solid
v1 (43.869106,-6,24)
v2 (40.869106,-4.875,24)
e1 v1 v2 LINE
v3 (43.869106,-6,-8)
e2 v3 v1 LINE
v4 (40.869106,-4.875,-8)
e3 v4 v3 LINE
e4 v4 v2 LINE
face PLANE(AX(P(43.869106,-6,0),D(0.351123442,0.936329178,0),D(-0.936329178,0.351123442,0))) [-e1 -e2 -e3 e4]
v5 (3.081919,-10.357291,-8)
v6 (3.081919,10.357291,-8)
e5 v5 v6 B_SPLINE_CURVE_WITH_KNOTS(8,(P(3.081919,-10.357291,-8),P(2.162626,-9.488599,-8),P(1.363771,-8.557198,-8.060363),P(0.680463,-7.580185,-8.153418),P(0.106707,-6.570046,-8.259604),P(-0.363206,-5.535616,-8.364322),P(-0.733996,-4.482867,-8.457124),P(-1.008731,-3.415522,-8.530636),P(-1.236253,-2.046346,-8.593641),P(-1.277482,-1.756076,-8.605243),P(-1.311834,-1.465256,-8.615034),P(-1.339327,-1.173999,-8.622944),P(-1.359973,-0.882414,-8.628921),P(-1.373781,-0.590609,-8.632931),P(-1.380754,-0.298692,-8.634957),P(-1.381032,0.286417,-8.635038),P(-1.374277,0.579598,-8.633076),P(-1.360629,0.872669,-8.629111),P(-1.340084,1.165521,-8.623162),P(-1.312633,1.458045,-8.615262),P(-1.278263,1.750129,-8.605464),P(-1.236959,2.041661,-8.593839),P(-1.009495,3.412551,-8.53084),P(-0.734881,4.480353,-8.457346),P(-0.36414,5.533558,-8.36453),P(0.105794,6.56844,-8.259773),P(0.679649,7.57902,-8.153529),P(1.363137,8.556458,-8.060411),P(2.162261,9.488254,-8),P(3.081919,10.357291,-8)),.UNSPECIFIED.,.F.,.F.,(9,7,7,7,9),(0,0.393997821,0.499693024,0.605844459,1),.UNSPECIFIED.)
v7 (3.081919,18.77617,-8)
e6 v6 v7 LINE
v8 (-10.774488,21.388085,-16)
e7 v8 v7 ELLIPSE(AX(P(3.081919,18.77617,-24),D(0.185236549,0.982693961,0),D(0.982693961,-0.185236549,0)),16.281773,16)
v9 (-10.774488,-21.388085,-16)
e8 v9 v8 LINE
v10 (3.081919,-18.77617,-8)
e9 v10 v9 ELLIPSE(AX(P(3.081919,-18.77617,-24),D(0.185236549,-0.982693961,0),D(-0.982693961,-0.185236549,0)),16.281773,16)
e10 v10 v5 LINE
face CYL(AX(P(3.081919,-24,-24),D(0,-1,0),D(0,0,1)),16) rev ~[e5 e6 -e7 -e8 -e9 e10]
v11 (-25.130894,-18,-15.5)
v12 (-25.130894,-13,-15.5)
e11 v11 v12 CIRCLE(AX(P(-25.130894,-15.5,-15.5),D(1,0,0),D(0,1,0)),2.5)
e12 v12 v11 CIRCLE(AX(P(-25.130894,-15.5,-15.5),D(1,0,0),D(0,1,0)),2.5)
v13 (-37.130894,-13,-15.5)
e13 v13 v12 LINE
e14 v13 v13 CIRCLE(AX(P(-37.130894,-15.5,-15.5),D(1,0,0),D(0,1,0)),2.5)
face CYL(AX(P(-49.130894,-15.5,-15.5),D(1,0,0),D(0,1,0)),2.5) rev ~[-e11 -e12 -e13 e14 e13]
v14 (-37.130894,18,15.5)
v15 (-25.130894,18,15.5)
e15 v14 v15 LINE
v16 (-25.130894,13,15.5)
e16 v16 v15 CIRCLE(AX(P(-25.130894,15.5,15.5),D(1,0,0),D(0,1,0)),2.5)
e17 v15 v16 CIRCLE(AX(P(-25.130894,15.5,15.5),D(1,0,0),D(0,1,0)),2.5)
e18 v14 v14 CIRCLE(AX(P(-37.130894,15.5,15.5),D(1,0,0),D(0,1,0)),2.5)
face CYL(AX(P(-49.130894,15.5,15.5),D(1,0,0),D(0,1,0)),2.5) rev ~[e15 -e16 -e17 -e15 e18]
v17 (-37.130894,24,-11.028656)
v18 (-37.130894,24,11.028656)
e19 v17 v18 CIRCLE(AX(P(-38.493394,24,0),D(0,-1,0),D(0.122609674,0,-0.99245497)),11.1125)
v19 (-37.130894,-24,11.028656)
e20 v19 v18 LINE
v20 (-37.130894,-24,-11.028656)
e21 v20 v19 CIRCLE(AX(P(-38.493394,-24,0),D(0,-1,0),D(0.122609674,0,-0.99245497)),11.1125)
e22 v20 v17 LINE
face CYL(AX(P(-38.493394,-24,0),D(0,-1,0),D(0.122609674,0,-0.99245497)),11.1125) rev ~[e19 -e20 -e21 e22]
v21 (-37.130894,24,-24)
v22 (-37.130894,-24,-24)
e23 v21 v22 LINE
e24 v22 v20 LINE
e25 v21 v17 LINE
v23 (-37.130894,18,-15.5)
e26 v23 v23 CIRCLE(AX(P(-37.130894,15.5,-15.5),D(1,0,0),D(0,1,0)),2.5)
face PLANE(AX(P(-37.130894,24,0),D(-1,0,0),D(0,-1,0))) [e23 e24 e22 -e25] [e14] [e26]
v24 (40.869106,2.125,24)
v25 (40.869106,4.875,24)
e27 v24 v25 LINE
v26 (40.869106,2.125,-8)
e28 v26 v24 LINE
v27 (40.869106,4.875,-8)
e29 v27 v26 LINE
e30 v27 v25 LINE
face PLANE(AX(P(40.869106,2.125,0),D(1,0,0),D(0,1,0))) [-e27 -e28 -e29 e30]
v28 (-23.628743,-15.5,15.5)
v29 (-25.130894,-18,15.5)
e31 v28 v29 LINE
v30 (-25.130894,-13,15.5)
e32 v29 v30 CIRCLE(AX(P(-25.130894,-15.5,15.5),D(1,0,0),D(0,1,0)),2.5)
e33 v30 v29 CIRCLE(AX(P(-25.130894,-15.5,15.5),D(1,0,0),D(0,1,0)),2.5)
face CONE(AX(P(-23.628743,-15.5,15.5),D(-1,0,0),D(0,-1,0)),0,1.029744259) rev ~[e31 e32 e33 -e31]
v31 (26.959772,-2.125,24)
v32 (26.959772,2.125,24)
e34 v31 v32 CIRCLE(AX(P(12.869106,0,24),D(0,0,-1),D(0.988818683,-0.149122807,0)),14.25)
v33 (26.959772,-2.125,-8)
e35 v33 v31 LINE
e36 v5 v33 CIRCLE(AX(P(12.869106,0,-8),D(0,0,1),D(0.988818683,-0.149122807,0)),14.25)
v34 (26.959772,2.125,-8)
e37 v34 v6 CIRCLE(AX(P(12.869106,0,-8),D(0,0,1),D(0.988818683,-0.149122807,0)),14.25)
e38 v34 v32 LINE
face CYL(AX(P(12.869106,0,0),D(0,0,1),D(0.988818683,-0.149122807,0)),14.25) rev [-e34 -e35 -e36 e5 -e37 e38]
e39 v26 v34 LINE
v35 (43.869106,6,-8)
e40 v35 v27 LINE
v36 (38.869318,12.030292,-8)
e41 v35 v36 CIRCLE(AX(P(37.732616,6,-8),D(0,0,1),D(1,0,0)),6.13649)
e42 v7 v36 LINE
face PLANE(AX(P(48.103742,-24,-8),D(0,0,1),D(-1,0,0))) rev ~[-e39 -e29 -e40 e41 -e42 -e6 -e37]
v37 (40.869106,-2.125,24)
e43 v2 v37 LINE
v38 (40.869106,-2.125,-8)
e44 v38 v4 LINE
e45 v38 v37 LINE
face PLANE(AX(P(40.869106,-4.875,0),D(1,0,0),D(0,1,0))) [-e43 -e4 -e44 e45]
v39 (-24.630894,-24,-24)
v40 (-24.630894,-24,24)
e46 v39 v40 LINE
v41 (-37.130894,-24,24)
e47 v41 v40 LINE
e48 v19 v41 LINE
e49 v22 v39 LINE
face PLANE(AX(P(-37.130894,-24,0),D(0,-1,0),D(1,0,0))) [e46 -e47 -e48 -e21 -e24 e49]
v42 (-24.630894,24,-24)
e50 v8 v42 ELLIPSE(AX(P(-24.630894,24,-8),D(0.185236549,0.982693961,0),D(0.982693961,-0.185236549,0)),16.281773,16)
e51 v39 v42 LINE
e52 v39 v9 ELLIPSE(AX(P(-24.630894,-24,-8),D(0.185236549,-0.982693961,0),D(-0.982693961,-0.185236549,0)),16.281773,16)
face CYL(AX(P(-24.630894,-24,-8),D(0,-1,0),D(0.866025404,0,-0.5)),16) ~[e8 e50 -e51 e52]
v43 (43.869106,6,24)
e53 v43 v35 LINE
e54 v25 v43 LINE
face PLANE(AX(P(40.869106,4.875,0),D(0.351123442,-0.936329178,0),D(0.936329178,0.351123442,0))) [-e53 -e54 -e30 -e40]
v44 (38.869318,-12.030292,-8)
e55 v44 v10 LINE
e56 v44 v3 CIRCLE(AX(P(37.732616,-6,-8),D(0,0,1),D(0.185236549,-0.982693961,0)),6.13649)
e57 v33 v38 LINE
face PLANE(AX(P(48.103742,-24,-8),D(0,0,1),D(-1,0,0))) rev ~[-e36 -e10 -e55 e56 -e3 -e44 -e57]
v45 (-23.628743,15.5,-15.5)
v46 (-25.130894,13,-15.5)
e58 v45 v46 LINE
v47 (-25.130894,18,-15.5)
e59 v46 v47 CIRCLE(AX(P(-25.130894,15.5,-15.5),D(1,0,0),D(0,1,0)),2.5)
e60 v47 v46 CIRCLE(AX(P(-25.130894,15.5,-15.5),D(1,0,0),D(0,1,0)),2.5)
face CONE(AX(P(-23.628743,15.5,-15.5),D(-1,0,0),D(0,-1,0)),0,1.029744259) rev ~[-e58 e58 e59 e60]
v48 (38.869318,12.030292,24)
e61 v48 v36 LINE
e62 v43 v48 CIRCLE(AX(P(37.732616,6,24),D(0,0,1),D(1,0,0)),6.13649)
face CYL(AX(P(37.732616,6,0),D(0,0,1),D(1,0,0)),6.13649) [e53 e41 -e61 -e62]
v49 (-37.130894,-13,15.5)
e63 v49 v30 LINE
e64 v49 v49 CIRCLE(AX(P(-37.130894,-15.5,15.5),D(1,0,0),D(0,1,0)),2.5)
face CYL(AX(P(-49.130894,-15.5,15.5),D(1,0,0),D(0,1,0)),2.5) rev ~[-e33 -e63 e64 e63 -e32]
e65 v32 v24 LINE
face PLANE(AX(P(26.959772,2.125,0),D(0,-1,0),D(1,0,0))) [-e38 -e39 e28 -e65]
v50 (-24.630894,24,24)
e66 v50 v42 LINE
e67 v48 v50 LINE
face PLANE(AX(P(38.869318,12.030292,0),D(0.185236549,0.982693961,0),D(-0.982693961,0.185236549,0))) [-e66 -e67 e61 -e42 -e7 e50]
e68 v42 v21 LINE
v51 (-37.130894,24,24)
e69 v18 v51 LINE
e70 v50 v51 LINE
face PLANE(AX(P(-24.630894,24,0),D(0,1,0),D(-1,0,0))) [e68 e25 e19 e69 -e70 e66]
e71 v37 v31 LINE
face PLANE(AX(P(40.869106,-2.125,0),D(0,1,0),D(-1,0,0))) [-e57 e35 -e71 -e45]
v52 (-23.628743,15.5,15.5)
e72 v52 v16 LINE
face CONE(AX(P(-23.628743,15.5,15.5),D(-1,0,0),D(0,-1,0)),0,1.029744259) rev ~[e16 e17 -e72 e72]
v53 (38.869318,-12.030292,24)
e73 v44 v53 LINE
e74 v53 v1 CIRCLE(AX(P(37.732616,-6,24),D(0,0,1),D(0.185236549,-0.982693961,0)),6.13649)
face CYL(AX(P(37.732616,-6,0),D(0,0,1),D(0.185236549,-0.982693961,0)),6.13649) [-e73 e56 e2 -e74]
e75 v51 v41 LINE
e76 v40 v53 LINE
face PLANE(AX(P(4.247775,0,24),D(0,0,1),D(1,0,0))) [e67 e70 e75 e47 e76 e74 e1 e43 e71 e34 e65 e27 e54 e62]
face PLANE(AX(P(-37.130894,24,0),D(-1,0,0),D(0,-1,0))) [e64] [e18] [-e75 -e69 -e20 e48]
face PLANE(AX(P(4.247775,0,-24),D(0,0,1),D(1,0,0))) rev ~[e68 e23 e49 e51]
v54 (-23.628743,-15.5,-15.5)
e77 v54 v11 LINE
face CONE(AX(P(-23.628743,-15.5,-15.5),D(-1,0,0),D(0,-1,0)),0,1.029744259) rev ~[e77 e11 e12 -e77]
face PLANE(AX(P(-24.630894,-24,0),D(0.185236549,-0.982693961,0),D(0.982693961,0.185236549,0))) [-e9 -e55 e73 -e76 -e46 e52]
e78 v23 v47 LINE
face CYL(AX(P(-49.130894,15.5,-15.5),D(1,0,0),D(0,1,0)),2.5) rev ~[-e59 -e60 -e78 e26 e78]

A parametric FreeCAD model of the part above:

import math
import FreeCAD as App
import Part
import Sketcher
from FreeCAD import Vector

doc = App.newDocument("Part")
params = doc.addObject("Spreadsheet::Sheet", "Params")
for row, (alias, value) in enumerate([
    ("sketch1_height", "48 mm"),
    ("sketch1_radius", "14.25 mm"),
    ("sketch1_width", "12.5 mm"),
    ("sketch1_height2", "2.75 mm"),
    ("pad1_length", "48 mm"),
    ("sketch2_radius", "16 mm"),
    ("sketch4_diameter", "5 mm"),
    ("hole_diameter", "5 mm"),
    ("hole_depth", "12 mm"),
], start=1):
    params.set(f"A{row}", alias)
    params.set(f"B{row}", "=" + value)
    params.setAlias(f"B{row}", alias)

body = doc.addObject("PartDesign::Body", "Body")

# Sketch on XY plane
sketch1 = body.newObject("Sketcher::SketchObject", "Sketch")
sketch1.AttachmentSupport = (doc.getObject("XY_Plane"), [""])
sketch1.MapMode = "FlatFace"
sketch1.addGeometry([
    Part.LineSegment(Vector(-24.630894, 24, 0), Vector(-37.130894, 24, 0)),  # 0
    Part.LineSegment(Vector(-37.130894, 24, 0), Vector(-37.130894, -24, 0)),  # 1
    Part.LineSegment(Vector(-37.130894, -24, 0), Vector(-24.630894, -24, 0)),  # 2
    Part.LineSegment(Vector(-24.630894, -24, 0), Vector(38.869318, -12.030292, 0)),  # 3
    Part.ArcOfCircle(Part.Circle(Vector(37.732616, -6, 0), Vector(0, 0, 1), 6.13649), math.radians(-79.325076), math.radians(0)),  # 4
    Part.LineSegment(Vector(43.869106, -6, 0), Vector(40.869106, -4.875, 0)),  # 5
    Part.LineSegment(Vector(40.869106, -4.875, 0), Vector(40.869106, -2.125, 0)),  # 6
    Part.LineSegment(Vector(40.869106, -2.125, 0), Vector(26.959772, -2.125, 0)),  # 7
    Part.ArcOfCircle(Part.Circle(Vector(12.869106, 0, 0), Vector(0, 0, 1), 14.25), math.radians(8.576095), math.radians(351.423905)),  # 8
    Part.LineSegment(Vector(26.959772, 2.125, 0), Vector(40.869106, 2.125, 0)),  # 9
    Part.LineSegment(Vector(40.869106, 2.125, 0), Vector(40.869106, 4.875, 0)),  # 10
    Part.LineSegment(Vector(40.869106, 4.875, 0), Vector(43.869106, 6, 0)),  # 11
    Part.ArcOfCircle(Part.Circle(Vector(37.732616, 6, 0), Vector(0, 0, 1), 6.13649), math.radians(0), math.radians(79.325076)),  # 12
    Part.LineSegment(Vector(38.869318, 12.030292, 0), Vector(-24.630894, 24, 0)),  # 13
], False)
sketch1.addConstraint([
    Sketcher.Constraint("Coincident", 0, 2, 1, 1),
    Sketcher.Constraint("Coincident", 1, 2, 2, 1),
    Sketcher.Constraint("Coincident", 2, 2, 3, 1),
    Sketcher.Constraint("Tangent", 3, 2, 4, 1),
    Sketcher.Constraint("Coincident", 4, 2, 5, 1),
    Sketcher.Constraint("Coincident", 5, 2, 6, 1),
    Sketcher.Constraint("Coincident", 6, 2, 7, 1),
    Sketcher.Constraint("Coincident", 7, 2, 8, 2),
    Sketcher.Constraint("Coincident", 8, 1, 9, 1),
    Sketcher.Constraint("Coincident", 9, 2, 10, 1),
    Sketcher.Constraint("Coincident", 10, 2, 11, 1),
    Sketcher.Constraint("Coincident", 11, 2, 12, 1),
    Sketcher.Constraint("Tangent", 12, 2, 13, 1),
    Sketcher.Constraint("Coincident", 13, 2, 0, 1),
    Sketcher.Constraint("Horizontal", 0),
    Sketcher.Constraint("Vertical", 1),
    Sketcher.Constraint("Horizontal", 2),
    Sketcher.Constraint("Vertical", 6),
    Sketcher.Constraint("Horizontal", 7),
    Sketcher.Constraint("Horizontal", 9),
    Sketcher.Constraint("Vertical", 10),
    Sketcher.Constraint("Equal", 4, 12),
    Sketcher.Constraint("Symmetric", 4, 3, 12, 3, -1),
    Sketcher.Constraint("Symmetric", 7, 2, 8, 1, -1),
    Sketcher.Constraint("Symmetric", 5, 2, 10, 2, -1),
    Sketcher.Constraint("Symmetric", 2, 2, 13, 2, -1),
    Sketcher.Constraint("Horizontal", 12, 3, 11, 2),
    Sketcher.Constraint("Equal", 5, 11),
    Sketcher.Constraint("DistanceY", 1, 2, 1, 1, 48.0),
    Sketcher.Constraint("Radius", 8, 14.25),
    Sketcher.Constraint("DistanceX", 0, 2, 0, 1, 12.5),
    Sketcher.Constraint("DistanceY", 4, 3, -1, 1, 6.0),
    Sketcher.Constraint("DistanceX", 0, 2, 8, 3, 50.0),
    Sketcher.Constraint("DistanceX", 8, 3, 4, 2, 31.0),
    Sketcher.Constraint("DistanceX", 5, 2, 4, 2, 3.0),
    Sketcher.Constraint("DistanceY", 5, 2, 9, 2, 7.0),
    Sketcher.Constraint("DistanceY", 6, 1, 6, 2, 2.75),
    Sketcher.Constraint("Radius", 4, 6.13649),
    Sketcher.Constraint("DistanceX", -1, 1, 3, 2, 38.869318),
])
sketch1.setExpression("Constraints[28]", "Params.sketch1_height")
sketch1.setExpression("Constraints[29]", "Params.sketch1_radius")
sketch1.setExpression("Constraints[30]", "Params.sketch1_width")
sketch1.setExpression("Constraints[36]", "Params.sketch1_height2")
pad1 = body.newObject("PartDesign::Pad", "Pad")
pad1.Profile = sketch1
pad1.setExpression("Length", "Params.pad1_length")
pad1.Midplane = True

# Sketch on XZ plane
sketch2 = body.newObject("Sketcher::SketchObject", "Sketch001")
sketch2.AttachmentSupport = (doc.getObject("XZ_Plane"), [""])
sketch2.MapMode = "FlatFace"
sketch2.AttachmentOffset = App.Placement(Vector(0, 0, 24), App.Rotation())
sketch2.addGeometry([
    Part.ArcOfCircle(Part.Circle(Vector(-24.630894, -8, 0), Vector(0, 0, 1), 16), math.radians(-90), math.radians(-30)),  # 0
    Part.LineSegment(Vector(-24.630894, -24, 0), Vector(48.103742, -24, 0)),  # 1
    Part.LineSegment(Vector(48.103742, -24, 0), Vector(48.103742, -8, 0)),  # 2
    Part.LineSegment(Vector(48.103742, -8, 0), Vector(3.081919, -8, 0)),  # 3
    Part.ArcOfCircle(Part.Circle(Vector(3.081919, -24, 0), Vector(0, 0, 1), 16), math.radians(90), math.radians(150)),  # 4
], False)
sketch2.addConstraint([
    Sketcher.Constraint("Tangent", 0, 1, 1, 1),
    Sketcher.Constraint("Coincident", 1, 2, 2, 1),
    Sketcher.Constraint("Coincident", 2, 2, 3, 1),
    Sketcher.Constraint("Tangent", 3, 2, 4, 1),
    Sketcher.Constraint("Tangent", 4, 2, 0, 2),
    Sketcher.Constraint("Horizontal", 1),
    Sketcher.Constraint("Vertical", 2),
    Sketcher.Constraint("Horizontal", 3),
    Sketcher.Constraint("Equal", 0, 4),
    Sketcher.Constraint("Horizontal", 4, 3, 0, 1),
    Sketcher.Constraint("Radius", 0, 16.0),
    Sketcher.Constraint("DistanceY", 0, 3, -1, 1, 8.0),
    Sketcher.Constraint("DistanceX", 1, 1, 1, 2, 72.734637),
    Sketcher.Constraint("DistanceX", -1, 1, 4, 3, 3.081919),
])
sketch2.setExpression("Constraints[10]", "Params.sketch2_radius")
pocket1 = body.newObject("PartDesign::Pocket", "Pocket")
pocket1.Profile = sketch2
pocket1.Type = "ThroughAll"

# Sketch on XZ plane
sketch3 = body.newObject("Sketcher::SketchObject", "Sketch002")
sketch3.AttachmentSupport = (doc.getObject("XZ_Plane"), [""])
sketch3.MapMode = "FlatFace"
sketch3.AttachmentOffset = App.Placement(Vector(0, 0, 24), App.Rotation())
sketch3.addGeometry([
    Part.LineSegment(Vector(-37.130894, 11.028656, 0), Vector(-37.130894, -11.028656, 0)),
    Part.ArcOfCircle(Part.Circle(Vector(-38.493394, 0, 0), Vector(0, 0, 1), 11.1125), math.radians(-82.957262), math.radians(82.957262)),
], False)
sketch3.addConstraint([
    Sketcher.Constraint("Coincident", 0, 1, 1, 2),
    Sketcher.Constraint("Coincident", 1, 1, 0, 2),
    Sketcher.Constraint("Vertical", 0),
    Sketcher.Constraint("PointOnObject", 1, 3, -1),
    Sketcher.Constraint("Radius", 1, 11.1125),
    Sketcher.Constraint("DistanceY", 0, 2, 0, 1, 22.057312),
    Sketcher.Constraint("DistanceX", 1, 3, -1, 1, 38.493394),
])
pocket2 = body.newObject("PartDesign::Pocket", "Pocket001")
pocket2.Profile = sketch3
pocket2.Type = "ThroughAll"

# Sketch on YZ plane
sketch4 = body.newObject("Sketcher::SketchObject", "Sketch003")
sketch4.AttachmentSupport = (doc.getObject("YZ_Plane"), [""])
sketch4.MapMode = "FlatFace"
sketch4.AttachmentOffset = App.Placement(Vector(0, 0, -37.130894), App.Rotation())
sketch4.addGeometry([
    Part.Circle(Vector(15.5, 15.5, 0), Vector(0, 0, 1), 2.5),
    Part.Circle(Vector(-15.5, 15.5, 0), Vector(0, 0, 1), 2.5),
    Part.Circle(Vector(-15.5, -15.5, 0), Vector(0, 0, 1), 2.5),
    Part.Circle(Vector(15.5, -15.5, 0), Vector(0, 0, 1), 2.5),
], False)
sketch4.addConstraint([
    Sketcher.Constraint("Equal", 0, 1),
    Sketcher.Constraint("Equal", 1, 2),
    Sketcher.Constraint("Equal", 2, 3),
    Sketcher.Constraint("Symmetric", 0, 3, 2, 3, -1, 1),
    Sketcher.Constraint("Symmetric", 1, 3, 3, 3, -1, 1),
    Sketcher.Constraint("Symmetric", 0, 3, 1, 3, -2),
    Sketcher.Constraint("Diameter", 0, 5.0),
    Sketcher.Constraint("DistanceX", 1, 3, 0, 3, 31.0),
    Sketcher.Constraint("DistanceY", 2, 3, 1, 3, 31.0),
])
sketch4.setExpression("Constraints[6]", "Params.sketch4_diameter")
doc.recompute()
hole = body.newObject("PartDesign::Hole", "Hole")
hole.Profile = sketch4
hole.ThreadType = "None"
hole.setExpression("Diameter", "Params.hole_diameter")
hole.DepthType = "Dimension"
hole.setExpression("Depth", "Params.hole_depth")
hole.DrillPoint = "Angled"
hole.DrillPointAngle = 118
hole.Reversed = True

doc.recompute()
